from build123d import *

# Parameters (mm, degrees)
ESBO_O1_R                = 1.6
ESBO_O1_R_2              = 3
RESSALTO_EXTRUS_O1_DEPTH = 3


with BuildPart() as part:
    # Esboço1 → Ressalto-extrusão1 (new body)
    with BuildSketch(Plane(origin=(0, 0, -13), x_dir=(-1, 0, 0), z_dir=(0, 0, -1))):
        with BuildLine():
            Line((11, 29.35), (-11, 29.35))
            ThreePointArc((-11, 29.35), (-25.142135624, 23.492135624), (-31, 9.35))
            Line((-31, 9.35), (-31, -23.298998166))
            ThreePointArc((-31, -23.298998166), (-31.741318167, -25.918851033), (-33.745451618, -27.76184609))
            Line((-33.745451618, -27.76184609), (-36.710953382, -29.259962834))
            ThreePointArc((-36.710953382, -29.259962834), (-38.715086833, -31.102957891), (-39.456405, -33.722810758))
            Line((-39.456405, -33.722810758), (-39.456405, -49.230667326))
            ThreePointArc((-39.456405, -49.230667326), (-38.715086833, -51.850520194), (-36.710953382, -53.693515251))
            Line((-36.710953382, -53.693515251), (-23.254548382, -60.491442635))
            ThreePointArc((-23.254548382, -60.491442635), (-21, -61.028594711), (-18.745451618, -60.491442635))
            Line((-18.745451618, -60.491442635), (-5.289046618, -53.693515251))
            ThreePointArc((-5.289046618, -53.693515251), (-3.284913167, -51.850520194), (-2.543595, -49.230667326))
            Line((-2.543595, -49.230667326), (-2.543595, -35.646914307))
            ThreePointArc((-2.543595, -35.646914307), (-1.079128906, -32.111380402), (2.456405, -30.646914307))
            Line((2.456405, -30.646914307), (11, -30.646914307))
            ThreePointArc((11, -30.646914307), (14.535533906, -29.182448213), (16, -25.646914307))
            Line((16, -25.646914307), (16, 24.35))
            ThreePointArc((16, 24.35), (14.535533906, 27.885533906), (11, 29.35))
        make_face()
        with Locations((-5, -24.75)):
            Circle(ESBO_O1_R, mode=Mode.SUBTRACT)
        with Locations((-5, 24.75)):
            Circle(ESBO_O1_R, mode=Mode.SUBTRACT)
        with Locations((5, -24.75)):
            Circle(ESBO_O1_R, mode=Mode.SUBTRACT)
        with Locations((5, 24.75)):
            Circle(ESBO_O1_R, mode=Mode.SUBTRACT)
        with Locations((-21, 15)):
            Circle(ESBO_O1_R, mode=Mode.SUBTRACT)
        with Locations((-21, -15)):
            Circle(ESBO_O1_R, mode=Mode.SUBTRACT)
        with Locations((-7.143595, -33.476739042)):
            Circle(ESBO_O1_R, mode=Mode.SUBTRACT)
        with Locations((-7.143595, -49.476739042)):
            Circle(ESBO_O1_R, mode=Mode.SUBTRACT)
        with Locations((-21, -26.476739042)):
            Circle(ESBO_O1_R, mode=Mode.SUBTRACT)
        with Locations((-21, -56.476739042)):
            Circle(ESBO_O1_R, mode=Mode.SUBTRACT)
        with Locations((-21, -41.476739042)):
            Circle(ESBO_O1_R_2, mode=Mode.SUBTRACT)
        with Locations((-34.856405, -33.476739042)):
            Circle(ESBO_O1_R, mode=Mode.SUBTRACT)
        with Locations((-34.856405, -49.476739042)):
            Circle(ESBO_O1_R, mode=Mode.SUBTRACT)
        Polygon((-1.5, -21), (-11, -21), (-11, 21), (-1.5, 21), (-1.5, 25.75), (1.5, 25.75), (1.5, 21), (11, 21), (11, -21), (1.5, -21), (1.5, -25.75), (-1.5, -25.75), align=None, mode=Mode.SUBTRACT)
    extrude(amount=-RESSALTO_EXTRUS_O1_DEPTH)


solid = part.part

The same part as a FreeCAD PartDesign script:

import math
import FreeCAD as App
import Part
import Sketcher

V = App.Vector
Q = App.Units.Quantity

doc = App.newDocument("Part")
body = doc.addObject("PartDesign::Body", "Body")

sketch1 = body.newObject("Sketcher::SketchObject", "Sketch")
sketch1.AttachmentSupport = (doc.getObject("XY_Plane"), [""])
sketch1.MapMode = "FlatFace"
sketch1.AttachmentOffset = App.Placement(V(0, 0, -13), App.Rotation())
sketch1.addGeometry([
    Part.LineSegment(V(-11, 29.35, 0), V(11, 29.35, 0)),
    Part.ArcOfCircle(Part.Circle(V(11, 9.35, 0), V(0, 0, 1), 20), math.radians(0), math.radians(90)),
    Part.LineSegment(V(31, 9.35, 0), V(31, -23.298998, 0)),
    Part.ArcOfCircle(Part.Circle(V(36, -23.298998, 0), V(0, 0, 1), 5), math.radians(180), math.radians(243.197937)),
    Part.LineSegment(V(33.745452, -27.761846, 0), V(36.710953, -29.259963, 0)),
    Part.ArcOfCircle(Part.Circle(V(34.456405, -33.722811, 0), V(0, 0, 1), 5), math.radians(0), math.radians(63.197937)),
    Part.LineSegment(V(39.456405, -33.722811, 0), V(39.456405, -49.230667, 0)),
    Part.ArcOfCircle(Part.Circle(V(34.456405, -49.230667, 0), V(0, 0, 1), 5), math.radians(-63.197937), math.radians(0)),
    Part.LineSegment(V(36.710953, -53.693515, 0), V(23.254548, -60.491443, 0)),
    Part.ArcOfCircle(Part.Circle(V(21, -56.028595, 0), V(0, 0, 1), 5), math.radians(-116.802063), math.radians(-63.197937)),
    Part.LineSegment(V(18.745452, -60.491443, 0), V(5.289047, -53.693515, 0)),
    Part.ArcOfCircle(Part.Circle(V(7.543595, -49.230667, 0), V(0, 0, 1), 5), math.radians(180), math.radians(243.197937)),
    Part.LineSegment(V(2.543595, -49.230667, 0), V(2.543595, -35.646914, 0)),
    Part.ArcOfCircle(Part.Circle(V(-2.456405, -35.646914, 0), V(0, 0, 1), 5), math.radians(0), math.radians(90)),
    Part.LineSegment(V(-2.456405, -30.646914, 0), V(-11, -30.646914, 0)),
    Part.ArcOfCircle(Part.Circle(V(-11, -25.646914, 0), V(0, 0, 1), 5), math.radians(180), math.radians(270)),
    Part.LineSegment(V(-16, -25.646914, 0), V(-16, 24.35, 0)),
    Part.ArcOfCircle(Part.Circle(V(-11, 24.35, 0), V(0, 0, 1), 5), math.radians(90), math.radians(180)),
    Part.Circle(V(34.856405, -49.476739, 0), V(0, 0, 1), 1.6),
    Part.Circle(V(21, -56.476739, 0), V(0, 0, 1), 1.6),
    Part.Circle(V(21, -41.476739, 0), V(0, 0, 1), 3),
    Part.Circle(V(34.856405, -33.476739, 0), V(0, 0, 1), 1.6),
    Part.Circle(V(21, -26.476739, 0), V(0, 0, 1), 1.6),
    Part.Circle(V(7.143595, -49.476739, 0), V(0, 0, 1), 1.6),
    Part.Circle(V(7.143595, -33.476739, 0), V(0, 0, 1), 1.6),
    Part.Circle(V(5, -24.75, 0), V(0, 0, 1), 1.6),
    Part.Circle(V(-5, -24.75, 0), V(0, 0, 1), 1.6),
    Part.Circle(V(21, -15, 0), V(0, 0, 1), 1.6),
    Part.Circle(V(21, 15, 0), V(0, 0, 1), 1.6),
    Part.LineSegment(V(1.5, -25.75, 0), V(1.5, -21, 0)),
    Part.LineSegment(V(1.5, -21, 0), V(11, -21, 0)),
    Part.LineSegment(V(11, -21, 0), V(11, 21, 0)),
    Part.LineSegment(V(11, 21, 0), V(1.5, 21, 0)),
    Part.LineSegment(V(1.5, 21, 0), V(1.5, 25.75, 0)),
    Part.LineSegment(V(1.5, 25.75, 0), V(-1.5, 25.75, 0)),
    Part.LineSegment(V(-1.5, 25.75, 0), V(-1.5, 21, 0)),
    Part.LineSegment(V(-1.5, 21, 0), V(-11, 21, 0)),
    Part.LineSegment(V(-11, 21, 0), V(-11, -21, 0)),
    Part.LineSegment(V(-11, -21, 0), V(-1.5, -21, 0)),
    Part.LineSegment(V(-1.5, -21, 0), V(-1.5, -25.75, 0)),
    Part.LineSegment(V(-1.5, -25.75, 0), V(1.5, -25.75, 0)),
    Part.Circle(V(5, 24.75, 0), V(0, 0, 1), 1.6),
    Part.Circle(V(-5, 24.75, 0), V(0, 0, 1), 1.6),
], False)
sketch1.addConstraint([
    Sketcher.Constraint("Tangent", 0, 2, 1, 2),
    Sketcher.Constraint("Tangent", 1, 1, 2, 1),
    Sketcher.Constraint("Tangent", 2, 2, 3, 1),
    Sketcher.Constraint("Tangent", 3, 2, 4, 1),
    Sketcher.Constraint("Tangent", 4, 2, 5, 2),
    Sketcher.Constraint("Tangent", 5, 1, 6, 1),
    Sketcher.Constraint("Tangent", 6, 2, 7, 2),
    Sketcher.Constraint("Tangent", 7, 1, 8, 1),
    Sketcher.Constraint("Tangent", 8, 2, 9, 2),
    Sketcher.Constraint("Tangent", 9, 1, 10, 1),
    Sketcher.Constraint("Tangent", 10, 2, 11, 2),
    Sketcher.Constraint("Tangent", 11, 1, 12, 1),
    Sketcher.Constraint("Tangent", 12, 2, 13, 1),
    Sketcher.Constraint("Tangent", 13, 2, 14, 1),
    Sketcher.Constraint("Tangent", 14, 2, 15, 2),
    Sketcher.Constraint("Tangent", 15, 1, 16, 1),
    Sketcher.Constraint("Tangent", 16, 2, 17, 2),
    Sketcher.Constraint("Tangent", 17, 1, 0, 1),
    Sketcher.Constraint("Coincident", 29, 2, 30, 1),
    Sketcher.Constraint("Coincident", 30, 2, 31, 1),
    Sketcher.Constraint("Coincident", 31, 2, 32, 1),
    Sketcher.Constraint("Coincident", 32, 2, 33, 1),
    Sketcher.Constraint("Coincident", 33, 2, 34, 1),
    Sketcher.Constraint("Coincident", 34, 2, 35, 1),
    Sketcher.Constraint("Coincident", 35, 2, 36, 1),
    Sketcher.Constraint("Coincident", 36, 2, 37, 1),
    Sketcher.Constraint("Coincident", 37, 2, 38, 1),
    Sketcher.Constraint("Coincident", 38, 2, 39, 1),
    Sketcher.Constraint("Coincident", 39, 2, 40, 1),
    Sketcher.Constraint("Coincident", 40, 2, 29, 1),
    Sketcher.Constraint("Horizontal", 0),
    Sketcher.Constraint("Vertical", 2),
    Sketcher.Constraint("Vertical", 6),
    Sketcher.Constraint("Vertical", 12),
    Sketcher.Constraint("Horizontal", 14),
    Sketcher.Constraint("Vertical", 16),
    Sketcher.Constraint("Vertical", 29),
    Sketcher.Constraint("Horizontal", 30),
    Sketcher.Constraint("Vertical", 31),
    Sketcher.Constraint("Horizontal", 32),
    Sketcher.Constraint("Vertical", 33),
    Sketcher.Constraint("Horizontal", 34),
    Sketcher.Constraint("Vertical", 35),
    Sketcher.Constraint("Horizontal", 36),
    Sketcher.Constraint("Vertical", 37),
    Sketcher.Constraint("Horizontal", 38),
    Sketcher.Constraint("Vertical", 39),
    Sketcher.Constraint("Horizontal", 40),
    Sketcher.Constraint("Equal", 3, 5),
    Sketcher.Constraint("Equal", 5, 7),
    Sketcher.Constraint("Equal", 7, 9),
    Sketcher.Constraint("Equal", 9, 11),
    Sketcher.Constraint("Equal", 11, 13),
    Sketcher.Constraint("Equal", 13, 15),
    Sketcher.Constraint("Equal", 15, 17),
    Sketcher.Constraint("Equal", 18, 19),
    Sketcher.Constraint("Equal", 19, 21),
    Sketcher.Constraint("Equal", 21, 22),
    Sketcher.Constraint("Equal", 22, 23),
    Sketcher.Constraint("Equal", 23, 24),
    Sketcher.Constraint("Equal", 24, 25),
    Sketcher.Constraint("Equal", 25, 26),
    Sketcher.Constraint("Equal", 26, 27),
    Sketcher.Constraint("Equal", 27, 28),
    Sketcher.Constraint("Equal", 28, 41),
    Sketcher.Constraint("Equal", 41, 42),
    Sketcher.Constraint("Symmetric", 26, 3, 41, 3, -1, 1),
    Sketcher.Constraint("Symmetric", 25, 3, 42, 3, -1, 1),
    Sketcher.Constraint("Symmetric", 29, 2, 35, 2, -1, 1),
    Sketcher.Constraint("Symmetric", 31, 2, 37, 2, -1, 1),
    Sketcher.Constraint("Symmetric", 33, 2, 39, 2, -1, 1),
    Sketcher.Constraint("Symmetric", 25, 3, 26, 3, -2),
    Sketcher.Constraint("Symmetric", 32, 2, 35, 2, -2),
    Sketcher.Constraint("Symmetric", 27, 3, 28, 3, -1),
    Sketcher.Constraint("Parallel", 4, 10),
    Sketcher.Constraint("Horizontal", 7, 3, 11, 3),
    Sketcher.Constraint("Horizontal", 18, 3, 23, 3),
    Sketcher.Constraint("Horizontal", 21, 3, 24, 3),
    Sketcher.Constraint("Horizontal", 8, 2, 9, 1),
    Sketcher.Constraint("Vertical", 9, 3, 19, 3),
    Sketcher.Constraint("Vertical", 19, 3, 20, 3),
    Sketcher.Constraint("Vertical", 18, 3, 21, 3),
    Sketcher.Constraint("Vertical", 20, 3, 22, 3),
    Sketcher.Constraint("Vertical", 23, 3, 24, 3),
    Sketcher.Constraint("Vertical", 22, 3, 27, 3),
    Sketcher.Constraint("Vertical", 0, 2, 30, 2),
    Sketcher.Constraint("Vertical", 17, 1, 36, 2),
    Sketcher.Constraint("Diameter", 20, Q("6 mm")),
    Sketcher.Constraint("Radius", 1, Q("20 mm")),
    Sketcher.Constraint("Radius", 3, Q("5 mm")),
    Sketcher.Constraint("Diameter", 18, Q("3.2 mm")),
    Sketcher.Constraint("DistanceX", 0, 1, 0, 2, Q("22 mm")),
    Sketcher.Constraint("DistanceX", 34, 2, 34, 1, Q("3 mm")),
    Sketcher.Constraint("DistanceY", 31, 1, 31, 2, Q("42 mm")),
    Sketcher.Constraint("DistanceX", -1, 1, 9, 3, Q("21 mm")),
    Sketcher.Constraint("DistanceX", -1, 1, 25, 3, Q("5 mm")),
    Sketcher.Constraint("DistanceY", 27, 3, -1, 1, Q("15 mm")),
    Sketcher.Constraint("DistanceY", 19, 3, 18, 3, Q("7 mm")),
    Sketcher.Constraint("DistanceY", 19, 3, 20, 3, Q("15 mm")),
    Sketcher.Constraint("DistanceY", 20, 3, 21, 3, Q("8 mm")),
    Sketcher.Constraint("DistanceY", 20, 3, 22, 3, Q("15 mm")),
    Sketcher.Constraint("DistanceY", 41, 3, 33, 2, Q("1 mm")),
    Sketcher.Constraint("DistanceY", 29, 1, 29, 2, Q("4.75 mm")),
    Sketcher.Constraint("DistanceX", 7, 3, 18, 3, Q("0.4 mm")),
    Sketcher.Constraint("DistanceX", 23, 3, 11, 3, Q("0.4 mm")),
    Sketcher.Constraint("DistanceY", 17, 3, 41, 3, Q("0.4 mm")),
    Sketcher.Constraint("DistanceY", 2, 2, 2, 1, Q("32.648998 mm")),
    Sketcher.Constraint("DistanceX", 3, 2, 4, 2, Q("2.965502 mm")),
    Sketcher.Constraint("Distance", 8, Q("15.076029 mm")),
    Sketcher.Constraint("DistanceY", 6, 2, 6, 1, Q("15.507857 mm")),
    Sketcher.Constraint("DistanceY", 12, 1, 12, 2, Q("13.583753 mm")),
    Sketcher.Constraint("DistanceY", 18, 3, -1, 1, Q("49.476739 mm")),
])
pad1 = body.newObject("PartDesign::Pad", "Pad")
pad1.Profile = sketch1
pad1.Length = 3

doc.recompute()
